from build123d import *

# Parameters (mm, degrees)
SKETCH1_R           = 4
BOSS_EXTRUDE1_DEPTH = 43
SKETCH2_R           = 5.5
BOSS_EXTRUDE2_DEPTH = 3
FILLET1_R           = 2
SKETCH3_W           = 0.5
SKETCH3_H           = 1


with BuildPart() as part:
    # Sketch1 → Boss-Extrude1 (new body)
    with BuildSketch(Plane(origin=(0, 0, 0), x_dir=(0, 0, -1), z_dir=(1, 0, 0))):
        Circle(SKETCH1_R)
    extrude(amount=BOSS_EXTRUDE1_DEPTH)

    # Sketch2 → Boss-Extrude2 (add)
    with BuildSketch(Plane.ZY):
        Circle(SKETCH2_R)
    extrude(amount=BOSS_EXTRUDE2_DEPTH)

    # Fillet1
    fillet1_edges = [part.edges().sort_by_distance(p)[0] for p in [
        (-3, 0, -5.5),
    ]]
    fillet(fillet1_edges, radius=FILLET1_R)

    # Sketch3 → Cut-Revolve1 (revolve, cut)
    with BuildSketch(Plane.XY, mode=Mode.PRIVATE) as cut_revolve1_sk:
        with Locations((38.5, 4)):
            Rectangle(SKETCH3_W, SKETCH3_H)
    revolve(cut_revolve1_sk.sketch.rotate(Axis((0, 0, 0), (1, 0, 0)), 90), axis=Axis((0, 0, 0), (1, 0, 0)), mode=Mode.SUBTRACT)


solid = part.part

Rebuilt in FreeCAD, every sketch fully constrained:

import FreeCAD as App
import Part
import Sketcher

V = App.Vector
Q = App.Units.Quantity


def edges_at(feature, points):
    """Names of the edges that pass closest to the given points."""
    edges = feature.Shape.Edges
    near = lambda p: min(range(len(edges)), key=lambda i: edges[i].distToShape(Part.Vertex(*p))[0])
    return sorted({f"Edge{near(p) + 1}" for p in points})

doc = App.newDocument("Part")
body = doc.addObject("PartDesign::Body", "Body")

# Sketch on YZ plane
sketch1 = body.newObject("Sketcher::SketchObject", "Sketch")
sketch1.AttachmentSupport = (doc.getObject("YZ_Plane"), [""])
sketch1.MapMode = "FlatFace"
sketch1.addGeometry(Part.Circle(V(0, 0, 0), V(0, 0, 1), 4), False)
sketch1.addConstraint([
    Sketcher.Constraint("Coincident", 0, 3, -1, 1),
    Sketcher.Constraint("Diameter", 0, Q("8 mm")),
])
pad1 = body.newObject("PartDesign::Pad", "Pad")
pad1.Profile = sketch1
pad1.Length = 43

# Sketch on YZ plane
sketch2 = body.newObject("Sketcher::SketchObject", "Sketch001")
sketch2.AttachmentSupport = (doc.getObject("YZ_Plane"), [""])
sketch2.MapMode = "FlatFace"
sketch2.addGeometry(Part.Circle(V(0, 0, 0), V(0, 0, 1), 5.5), False)
sketch2.addConstraint([
    Sketcher.Constraint("Coincident", 0, 3, -1, 1),
    Sketcher.Constraint("Diameter", 0, Q("11 mm")),
])
pad2 = body.newObject("PartDesign::Pad", "Pad001")
pad2.Profile = sketch2
pad2.Length = 3
pad2.Reversed = True
doc.recompute()

fillet = body.newObject("PartDesign::Fillet", "Fillet")
fillet.Base = (pad2, edges_at(pad2, [(-3, 0, -5.5)]))
fillet.Radius = 2

# Sketch on XY plane
sketch3 = body.newObject("Sketcher::SketchObject", "Sketch002")
sketch3.AttachmentSupport = (doc.getObject("XY_Plane"), [""])
sketch3.MapMode = "FlatFace"
sketch3.addGeometry([
    Part.LineSegment(V(38.25, 4.5, 0), V(38.25, 3.5, 0)),
    Part.LineSegment(V(38.25, 3.5, 0), V(38.75, 3.5, 0)),
    Part.LineSegment(V(38.75, 3.5, 0), V(38.75, 4.5, 0)),
    Part.LineSegment(V(38.75, 4.5, 0), V(38.25, 4.5, 0)),
], False)
sketch3.addConstraint([
    Sketcher.Constraint("Coincident", 0, 2, 1, 1),
    Sketcher.Constraint("Coincident", 1, 2, 2, 1),
    Sketcher.Constraint("Coincident", 2, 2, 3, 1),
    Sketcher.Constraint("Coincident", 3, 2, 0, 1),
    Sketcher.Constraint("Vertical", 0),
    Sketcher.Constraint("Horizontal", 1),
    Sketcher.Constraint("Vertical", 2),
    Sketcher.Constraint("Horizontal", 3),
    Sketcher.Constraint("DistanceY", 0, 2, 0, 1, Q("1 mm")),
    Sketcher.Constraint("DistanceX", 1, 1, 1, 2, Q("0.5 mm")),
    Sketcher.Constraint("DistanceY", -1, 1, 0, 2, Q("3.5 mm")),
    Sketcher.Constraint("DistanceX", -1, 1, 0, 2, Q("38.25 mm")),
])
groove = body.newObject("PartDesign::Groove", "Groove")
groove.Profile = sketch3
groove.ReferenceAxis = (sketch3, ["H_Axis"])
groove.Angle = 360

doc.recompute()
